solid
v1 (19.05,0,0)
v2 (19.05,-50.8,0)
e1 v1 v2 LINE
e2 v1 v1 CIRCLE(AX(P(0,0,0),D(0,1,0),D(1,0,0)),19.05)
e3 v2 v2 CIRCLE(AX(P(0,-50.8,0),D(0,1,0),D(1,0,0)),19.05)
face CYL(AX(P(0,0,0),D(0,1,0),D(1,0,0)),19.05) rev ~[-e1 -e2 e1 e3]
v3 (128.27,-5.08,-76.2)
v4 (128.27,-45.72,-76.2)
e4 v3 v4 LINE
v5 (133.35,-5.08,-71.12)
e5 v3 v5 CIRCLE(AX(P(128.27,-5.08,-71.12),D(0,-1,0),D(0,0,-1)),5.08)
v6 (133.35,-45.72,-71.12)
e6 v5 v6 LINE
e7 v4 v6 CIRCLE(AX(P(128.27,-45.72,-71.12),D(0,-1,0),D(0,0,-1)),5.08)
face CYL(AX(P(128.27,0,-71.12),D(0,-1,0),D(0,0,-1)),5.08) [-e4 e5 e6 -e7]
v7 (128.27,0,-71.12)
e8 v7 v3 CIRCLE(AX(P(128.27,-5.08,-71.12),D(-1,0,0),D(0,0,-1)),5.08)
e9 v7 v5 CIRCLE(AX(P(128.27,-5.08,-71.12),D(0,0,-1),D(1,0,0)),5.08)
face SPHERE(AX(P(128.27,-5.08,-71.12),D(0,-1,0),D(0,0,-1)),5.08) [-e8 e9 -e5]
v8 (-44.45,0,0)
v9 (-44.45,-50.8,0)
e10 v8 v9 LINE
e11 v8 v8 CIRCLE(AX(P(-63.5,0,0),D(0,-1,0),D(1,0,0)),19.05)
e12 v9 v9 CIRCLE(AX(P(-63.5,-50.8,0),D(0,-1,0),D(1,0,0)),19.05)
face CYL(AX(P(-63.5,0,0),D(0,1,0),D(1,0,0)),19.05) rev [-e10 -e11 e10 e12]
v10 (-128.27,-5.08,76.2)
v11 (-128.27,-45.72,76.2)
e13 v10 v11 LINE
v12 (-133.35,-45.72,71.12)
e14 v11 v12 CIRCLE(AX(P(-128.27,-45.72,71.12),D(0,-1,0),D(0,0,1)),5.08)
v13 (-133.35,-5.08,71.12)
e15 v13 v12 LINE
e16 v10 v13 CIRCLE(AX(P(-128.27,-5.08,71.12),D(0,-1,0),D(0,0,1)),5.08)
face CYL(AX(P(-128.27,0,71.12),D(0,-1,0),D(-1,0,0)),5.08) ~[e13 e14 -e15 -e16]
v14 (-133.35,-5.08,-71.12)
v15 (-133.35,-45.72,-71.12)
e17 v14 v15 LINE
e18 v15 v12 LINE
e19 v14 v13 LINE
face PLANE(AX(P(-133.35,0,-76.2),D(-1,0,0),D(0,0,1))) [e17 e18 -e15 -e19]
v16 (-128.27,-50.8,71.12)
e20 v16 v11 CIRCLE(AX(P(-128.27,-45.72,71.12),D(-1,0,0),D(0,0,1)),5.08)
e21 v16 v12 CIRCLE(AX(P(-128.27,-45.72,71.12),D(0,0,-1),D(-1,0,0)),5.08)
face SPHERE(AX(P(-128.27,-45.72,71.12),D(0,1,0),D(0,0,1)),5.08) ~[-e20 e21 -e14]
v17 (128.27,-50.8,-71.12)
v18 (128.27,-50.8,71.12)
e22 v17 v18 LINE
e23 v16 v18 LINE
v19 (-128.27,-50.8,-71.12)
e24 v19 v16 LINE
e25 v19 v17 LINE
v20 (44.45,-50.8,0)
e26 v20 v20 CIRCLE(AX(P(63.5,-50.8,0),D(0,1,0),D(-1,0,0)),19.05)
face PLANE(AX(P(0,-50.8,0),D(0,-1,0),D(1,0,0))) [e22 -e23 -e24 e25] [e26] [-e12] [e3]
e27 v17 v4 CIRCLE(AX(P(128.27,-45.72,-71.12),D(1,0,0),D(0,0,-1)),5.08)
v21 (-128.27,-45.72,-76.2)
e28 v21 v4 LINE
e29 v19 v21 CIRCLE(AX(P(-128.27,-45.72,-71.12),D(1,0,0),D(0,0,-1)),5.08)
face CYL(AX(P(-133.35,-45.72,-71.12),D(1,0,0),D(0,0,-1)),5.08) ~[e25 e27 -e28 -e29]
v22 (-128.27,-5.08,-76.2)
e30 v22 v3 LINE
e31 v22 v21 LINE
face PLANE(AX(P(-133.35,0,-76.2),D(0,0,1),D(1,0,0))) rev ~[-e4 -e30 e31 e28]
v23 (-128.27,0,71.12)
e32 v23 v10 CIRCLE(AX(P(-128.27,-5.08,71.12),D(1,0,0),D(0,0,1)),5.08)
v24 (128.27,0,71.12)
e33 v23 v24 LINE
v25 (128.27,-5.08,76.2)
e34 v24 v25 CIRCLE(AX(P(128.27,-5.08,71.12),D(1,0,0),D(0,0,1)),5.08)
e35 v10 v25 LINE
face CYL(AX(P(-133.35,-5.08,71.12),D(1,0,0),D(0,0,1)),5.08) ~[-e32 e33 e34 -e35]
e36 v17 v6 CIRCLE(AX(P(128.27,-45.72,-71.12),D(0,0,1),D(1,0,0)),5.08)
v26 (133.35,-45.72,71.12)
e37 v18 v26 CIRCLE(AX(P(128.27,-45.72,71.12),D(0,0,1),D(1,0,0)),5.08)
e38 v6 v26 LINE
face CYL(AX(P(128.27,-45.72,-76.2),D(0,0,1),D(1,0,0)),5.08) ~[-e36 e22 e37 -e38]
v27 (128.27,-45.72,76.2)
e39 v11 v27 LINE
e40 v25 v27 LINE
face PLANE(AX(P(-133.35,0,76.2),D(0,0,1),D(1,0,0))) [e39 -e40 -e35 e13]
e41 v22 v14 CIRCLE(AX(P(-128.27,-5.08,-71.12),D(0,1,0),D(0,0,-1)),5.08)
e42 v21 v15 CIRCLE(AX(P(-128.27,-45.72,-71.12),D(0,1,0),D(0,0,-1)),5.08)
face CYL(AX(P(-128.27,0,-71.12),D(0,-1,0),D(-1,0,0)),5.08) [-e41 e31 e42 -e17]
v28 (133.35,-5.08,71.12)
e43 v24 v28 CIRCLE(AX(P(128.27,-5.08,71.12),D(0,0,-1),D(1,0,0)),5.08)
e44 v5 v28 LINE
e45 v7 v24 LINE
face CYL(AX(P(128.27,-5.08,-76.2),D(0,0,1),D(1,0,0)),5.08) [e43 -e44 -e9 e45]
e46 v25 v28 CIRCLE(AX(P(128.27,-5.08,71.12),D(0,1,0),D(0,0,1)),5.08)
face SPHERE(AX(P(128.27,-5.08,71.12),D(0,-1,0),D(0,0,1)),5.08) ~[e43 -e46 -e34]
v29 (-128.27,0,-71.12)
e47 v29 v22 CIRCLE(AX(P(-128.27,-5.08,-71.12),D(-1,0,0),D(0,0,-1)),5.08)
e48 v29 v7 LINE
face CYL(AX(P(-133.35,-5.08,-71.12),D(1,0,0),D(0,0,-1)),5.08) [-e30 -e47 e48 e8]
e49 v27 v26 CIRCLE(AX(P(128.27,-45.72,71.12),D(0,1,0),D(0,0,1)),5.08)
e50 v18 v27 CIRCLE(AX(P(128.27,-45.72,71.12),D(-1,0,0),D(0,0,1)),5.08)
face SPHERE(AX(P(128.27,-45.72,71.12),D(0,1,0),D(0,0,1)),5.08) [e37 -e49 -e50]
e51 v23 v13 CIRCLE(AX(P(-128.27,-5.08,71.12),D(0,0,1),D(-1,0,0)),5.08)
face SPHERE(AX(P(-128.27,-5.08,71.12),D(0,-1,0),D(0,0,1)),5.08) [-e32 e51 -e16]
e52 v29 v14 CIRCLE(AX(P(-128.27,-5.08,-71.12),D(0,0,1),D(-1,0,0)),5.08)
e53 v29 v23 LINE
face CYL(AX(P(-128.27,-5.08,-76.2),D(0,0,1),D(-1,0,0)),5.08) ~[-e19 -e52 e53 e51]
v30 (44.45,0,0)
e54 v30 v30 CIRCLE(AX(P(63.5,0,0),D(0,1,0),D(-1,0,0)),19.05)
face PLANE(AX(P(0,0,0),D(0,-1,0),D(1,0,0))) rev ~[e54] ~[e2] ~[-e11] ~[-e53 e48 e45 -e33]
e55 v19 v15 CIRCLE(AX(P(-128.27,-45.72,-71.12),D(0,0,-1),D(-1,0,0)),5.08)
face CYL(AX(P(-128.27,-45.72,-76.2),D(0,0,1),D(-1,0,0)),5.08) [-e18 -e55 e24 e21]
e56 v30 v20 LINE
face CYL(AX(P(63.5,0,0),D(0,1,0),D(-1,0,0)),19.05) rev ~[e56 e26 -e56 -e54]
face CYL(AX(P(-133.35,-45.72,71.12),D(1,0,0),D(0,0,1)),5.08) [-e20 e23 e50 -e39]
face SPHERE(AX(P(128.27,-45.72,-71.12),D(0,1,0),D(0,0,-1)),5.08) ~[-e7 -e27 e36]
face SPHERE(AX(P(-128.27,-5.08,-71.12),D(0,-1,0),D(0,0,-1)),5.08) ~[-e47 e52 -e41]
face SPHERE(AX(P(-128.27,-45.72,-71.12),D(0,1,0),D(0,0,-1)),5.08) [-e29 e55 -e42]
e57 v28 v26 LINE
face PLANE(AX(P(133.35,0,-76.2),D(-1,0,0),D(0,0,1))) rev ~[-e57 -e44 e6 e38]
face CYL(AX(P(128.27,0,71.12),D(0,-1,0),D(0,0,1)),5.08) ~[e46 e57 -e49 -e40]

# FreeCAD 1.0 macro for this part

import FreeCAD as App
import Part
import Sketcher

V = App.Vector
Q = App.Units.Quantity


def edges_at(feature, points):
    """Names of the edges that pass closest to the given points."""
    edges = feature.Shape.Edges
    near = lambda p: min(range(len(edges)), key=lambda i: edges[i].distToShape(Part.Vertex(*p))[0])
    return sorted({f"Edge{near(p) + 1}" for p in points})

doc = App.newDocument("Part")
body = doc.addObject("PartDesign::Body", "Body")

# Sketch on XZ plane
sketch1 = body.newObject("Sketcher::SketchObject", "Sketch")
sketch1.AttachmentSupport = (doc.getObject("XZ_Plane"), [""])
sketch1.MapMode = "FlatFace"
sketch1.addGeometry([
    Part.LineSegment(V(-133.35, 76.2, 0), V(-133.35, -76.2, 0)),  # 0
    Part.LineSegment(V(-133.35, -76.2, 0), V(133.35, -76.2, 0)),  # 1
    Part.LineSegment(V(133.35, -76.2, 0), V(133.35, 76.2, 0)),  # 2
    Part.LineSegment(V(133.35, 76.2, 0), V(-133.35, 76.2, 0)),  # 3
    Part.Circle(V(-63.5, 0, 0), V(0, 0, 1), 19.05),  # 4
    Part.Circle(V(63.5, 0, 0), V(0, 0, 1), 19.05),  # 5
    Part.Circle(V(0, 0, 0), V(0, 0, 1), 19.05),  # 6
], False)
sketch1.addConstraint([
    Sketcher.Constraint("Coincident", 0, 2, 1, 1),
    Sketcher.Constraint("Coincident", 1, 2, 2, 1),
    Sketcher.Constraint("Coincident", 2, 2, 3, 1),
    Sketcher.Constraint("Coincident", 3, 2, 0, 1),
    Sketcher.Constraint("Vertical", 0),
    Sketcher.Constraint("Horizontal", 1),
    Sketcher.Constraint("Vertical", 2),
    Sketcher.Constraint("Horizontal", 3),
    Sketcher.Constraint("Coincident", 6, 3, -1, 1),
    Sketcher.Constraint("Equal", 4, 5),
    Sketcher.Constraint("Equal", 5, 6),
    Sketcher.Constraint("Symmetric", 4, 3, 5, 3, -1, 1),
    Sketcher.Constraint("Symmetric", 0, 2, 2, 2, -1, 1),
    Sketcher.Constraint("PointOnObject", 4, 3, -1),
    Sketcher.Constraint("Diameter", 4, Q("1.5 in")),
    Sketcher.Constraint("DistanceY", 0, 2, 0, 1, Q("6 in")),
    Sketcher.Constraint("DistanceX", 1, 1, 1, 2, Q("10.5 in")),
    Sketcher.Constraint("DistanceX", 4, 3, 5, 3, Q("5 in")),
])
pad1 = body.newObject("PartDesign::Pad", "Pad")
pad1.Profile = sketch1
pad1.Length = Q("2 in")
doc.recompute()

fillet = body.newObject("PartDesign::Fillet", "Fillet")
fillet.Base = (pad1, edges_at(pad1, [
    (-133.35, -25.4, -76.2),
    (133.35, -25.4, -76.2),
    (0, 0, -76.2),
    (0, -50.8, -76.2),
    (133.35, -25.4, 76.2),
    (-133.35, -25.4, 76.2),
    (0, 0, 76.2),
    (0, -50.8, 76.2),
    (-133.35, 0, 0),
    (-133.35, -50.8, 0),
    (133.35, 0, 0),
    (133.35, -50.8, 0),
]))
fillet.Radius = Q("0.2 in")

doc.recompute()
